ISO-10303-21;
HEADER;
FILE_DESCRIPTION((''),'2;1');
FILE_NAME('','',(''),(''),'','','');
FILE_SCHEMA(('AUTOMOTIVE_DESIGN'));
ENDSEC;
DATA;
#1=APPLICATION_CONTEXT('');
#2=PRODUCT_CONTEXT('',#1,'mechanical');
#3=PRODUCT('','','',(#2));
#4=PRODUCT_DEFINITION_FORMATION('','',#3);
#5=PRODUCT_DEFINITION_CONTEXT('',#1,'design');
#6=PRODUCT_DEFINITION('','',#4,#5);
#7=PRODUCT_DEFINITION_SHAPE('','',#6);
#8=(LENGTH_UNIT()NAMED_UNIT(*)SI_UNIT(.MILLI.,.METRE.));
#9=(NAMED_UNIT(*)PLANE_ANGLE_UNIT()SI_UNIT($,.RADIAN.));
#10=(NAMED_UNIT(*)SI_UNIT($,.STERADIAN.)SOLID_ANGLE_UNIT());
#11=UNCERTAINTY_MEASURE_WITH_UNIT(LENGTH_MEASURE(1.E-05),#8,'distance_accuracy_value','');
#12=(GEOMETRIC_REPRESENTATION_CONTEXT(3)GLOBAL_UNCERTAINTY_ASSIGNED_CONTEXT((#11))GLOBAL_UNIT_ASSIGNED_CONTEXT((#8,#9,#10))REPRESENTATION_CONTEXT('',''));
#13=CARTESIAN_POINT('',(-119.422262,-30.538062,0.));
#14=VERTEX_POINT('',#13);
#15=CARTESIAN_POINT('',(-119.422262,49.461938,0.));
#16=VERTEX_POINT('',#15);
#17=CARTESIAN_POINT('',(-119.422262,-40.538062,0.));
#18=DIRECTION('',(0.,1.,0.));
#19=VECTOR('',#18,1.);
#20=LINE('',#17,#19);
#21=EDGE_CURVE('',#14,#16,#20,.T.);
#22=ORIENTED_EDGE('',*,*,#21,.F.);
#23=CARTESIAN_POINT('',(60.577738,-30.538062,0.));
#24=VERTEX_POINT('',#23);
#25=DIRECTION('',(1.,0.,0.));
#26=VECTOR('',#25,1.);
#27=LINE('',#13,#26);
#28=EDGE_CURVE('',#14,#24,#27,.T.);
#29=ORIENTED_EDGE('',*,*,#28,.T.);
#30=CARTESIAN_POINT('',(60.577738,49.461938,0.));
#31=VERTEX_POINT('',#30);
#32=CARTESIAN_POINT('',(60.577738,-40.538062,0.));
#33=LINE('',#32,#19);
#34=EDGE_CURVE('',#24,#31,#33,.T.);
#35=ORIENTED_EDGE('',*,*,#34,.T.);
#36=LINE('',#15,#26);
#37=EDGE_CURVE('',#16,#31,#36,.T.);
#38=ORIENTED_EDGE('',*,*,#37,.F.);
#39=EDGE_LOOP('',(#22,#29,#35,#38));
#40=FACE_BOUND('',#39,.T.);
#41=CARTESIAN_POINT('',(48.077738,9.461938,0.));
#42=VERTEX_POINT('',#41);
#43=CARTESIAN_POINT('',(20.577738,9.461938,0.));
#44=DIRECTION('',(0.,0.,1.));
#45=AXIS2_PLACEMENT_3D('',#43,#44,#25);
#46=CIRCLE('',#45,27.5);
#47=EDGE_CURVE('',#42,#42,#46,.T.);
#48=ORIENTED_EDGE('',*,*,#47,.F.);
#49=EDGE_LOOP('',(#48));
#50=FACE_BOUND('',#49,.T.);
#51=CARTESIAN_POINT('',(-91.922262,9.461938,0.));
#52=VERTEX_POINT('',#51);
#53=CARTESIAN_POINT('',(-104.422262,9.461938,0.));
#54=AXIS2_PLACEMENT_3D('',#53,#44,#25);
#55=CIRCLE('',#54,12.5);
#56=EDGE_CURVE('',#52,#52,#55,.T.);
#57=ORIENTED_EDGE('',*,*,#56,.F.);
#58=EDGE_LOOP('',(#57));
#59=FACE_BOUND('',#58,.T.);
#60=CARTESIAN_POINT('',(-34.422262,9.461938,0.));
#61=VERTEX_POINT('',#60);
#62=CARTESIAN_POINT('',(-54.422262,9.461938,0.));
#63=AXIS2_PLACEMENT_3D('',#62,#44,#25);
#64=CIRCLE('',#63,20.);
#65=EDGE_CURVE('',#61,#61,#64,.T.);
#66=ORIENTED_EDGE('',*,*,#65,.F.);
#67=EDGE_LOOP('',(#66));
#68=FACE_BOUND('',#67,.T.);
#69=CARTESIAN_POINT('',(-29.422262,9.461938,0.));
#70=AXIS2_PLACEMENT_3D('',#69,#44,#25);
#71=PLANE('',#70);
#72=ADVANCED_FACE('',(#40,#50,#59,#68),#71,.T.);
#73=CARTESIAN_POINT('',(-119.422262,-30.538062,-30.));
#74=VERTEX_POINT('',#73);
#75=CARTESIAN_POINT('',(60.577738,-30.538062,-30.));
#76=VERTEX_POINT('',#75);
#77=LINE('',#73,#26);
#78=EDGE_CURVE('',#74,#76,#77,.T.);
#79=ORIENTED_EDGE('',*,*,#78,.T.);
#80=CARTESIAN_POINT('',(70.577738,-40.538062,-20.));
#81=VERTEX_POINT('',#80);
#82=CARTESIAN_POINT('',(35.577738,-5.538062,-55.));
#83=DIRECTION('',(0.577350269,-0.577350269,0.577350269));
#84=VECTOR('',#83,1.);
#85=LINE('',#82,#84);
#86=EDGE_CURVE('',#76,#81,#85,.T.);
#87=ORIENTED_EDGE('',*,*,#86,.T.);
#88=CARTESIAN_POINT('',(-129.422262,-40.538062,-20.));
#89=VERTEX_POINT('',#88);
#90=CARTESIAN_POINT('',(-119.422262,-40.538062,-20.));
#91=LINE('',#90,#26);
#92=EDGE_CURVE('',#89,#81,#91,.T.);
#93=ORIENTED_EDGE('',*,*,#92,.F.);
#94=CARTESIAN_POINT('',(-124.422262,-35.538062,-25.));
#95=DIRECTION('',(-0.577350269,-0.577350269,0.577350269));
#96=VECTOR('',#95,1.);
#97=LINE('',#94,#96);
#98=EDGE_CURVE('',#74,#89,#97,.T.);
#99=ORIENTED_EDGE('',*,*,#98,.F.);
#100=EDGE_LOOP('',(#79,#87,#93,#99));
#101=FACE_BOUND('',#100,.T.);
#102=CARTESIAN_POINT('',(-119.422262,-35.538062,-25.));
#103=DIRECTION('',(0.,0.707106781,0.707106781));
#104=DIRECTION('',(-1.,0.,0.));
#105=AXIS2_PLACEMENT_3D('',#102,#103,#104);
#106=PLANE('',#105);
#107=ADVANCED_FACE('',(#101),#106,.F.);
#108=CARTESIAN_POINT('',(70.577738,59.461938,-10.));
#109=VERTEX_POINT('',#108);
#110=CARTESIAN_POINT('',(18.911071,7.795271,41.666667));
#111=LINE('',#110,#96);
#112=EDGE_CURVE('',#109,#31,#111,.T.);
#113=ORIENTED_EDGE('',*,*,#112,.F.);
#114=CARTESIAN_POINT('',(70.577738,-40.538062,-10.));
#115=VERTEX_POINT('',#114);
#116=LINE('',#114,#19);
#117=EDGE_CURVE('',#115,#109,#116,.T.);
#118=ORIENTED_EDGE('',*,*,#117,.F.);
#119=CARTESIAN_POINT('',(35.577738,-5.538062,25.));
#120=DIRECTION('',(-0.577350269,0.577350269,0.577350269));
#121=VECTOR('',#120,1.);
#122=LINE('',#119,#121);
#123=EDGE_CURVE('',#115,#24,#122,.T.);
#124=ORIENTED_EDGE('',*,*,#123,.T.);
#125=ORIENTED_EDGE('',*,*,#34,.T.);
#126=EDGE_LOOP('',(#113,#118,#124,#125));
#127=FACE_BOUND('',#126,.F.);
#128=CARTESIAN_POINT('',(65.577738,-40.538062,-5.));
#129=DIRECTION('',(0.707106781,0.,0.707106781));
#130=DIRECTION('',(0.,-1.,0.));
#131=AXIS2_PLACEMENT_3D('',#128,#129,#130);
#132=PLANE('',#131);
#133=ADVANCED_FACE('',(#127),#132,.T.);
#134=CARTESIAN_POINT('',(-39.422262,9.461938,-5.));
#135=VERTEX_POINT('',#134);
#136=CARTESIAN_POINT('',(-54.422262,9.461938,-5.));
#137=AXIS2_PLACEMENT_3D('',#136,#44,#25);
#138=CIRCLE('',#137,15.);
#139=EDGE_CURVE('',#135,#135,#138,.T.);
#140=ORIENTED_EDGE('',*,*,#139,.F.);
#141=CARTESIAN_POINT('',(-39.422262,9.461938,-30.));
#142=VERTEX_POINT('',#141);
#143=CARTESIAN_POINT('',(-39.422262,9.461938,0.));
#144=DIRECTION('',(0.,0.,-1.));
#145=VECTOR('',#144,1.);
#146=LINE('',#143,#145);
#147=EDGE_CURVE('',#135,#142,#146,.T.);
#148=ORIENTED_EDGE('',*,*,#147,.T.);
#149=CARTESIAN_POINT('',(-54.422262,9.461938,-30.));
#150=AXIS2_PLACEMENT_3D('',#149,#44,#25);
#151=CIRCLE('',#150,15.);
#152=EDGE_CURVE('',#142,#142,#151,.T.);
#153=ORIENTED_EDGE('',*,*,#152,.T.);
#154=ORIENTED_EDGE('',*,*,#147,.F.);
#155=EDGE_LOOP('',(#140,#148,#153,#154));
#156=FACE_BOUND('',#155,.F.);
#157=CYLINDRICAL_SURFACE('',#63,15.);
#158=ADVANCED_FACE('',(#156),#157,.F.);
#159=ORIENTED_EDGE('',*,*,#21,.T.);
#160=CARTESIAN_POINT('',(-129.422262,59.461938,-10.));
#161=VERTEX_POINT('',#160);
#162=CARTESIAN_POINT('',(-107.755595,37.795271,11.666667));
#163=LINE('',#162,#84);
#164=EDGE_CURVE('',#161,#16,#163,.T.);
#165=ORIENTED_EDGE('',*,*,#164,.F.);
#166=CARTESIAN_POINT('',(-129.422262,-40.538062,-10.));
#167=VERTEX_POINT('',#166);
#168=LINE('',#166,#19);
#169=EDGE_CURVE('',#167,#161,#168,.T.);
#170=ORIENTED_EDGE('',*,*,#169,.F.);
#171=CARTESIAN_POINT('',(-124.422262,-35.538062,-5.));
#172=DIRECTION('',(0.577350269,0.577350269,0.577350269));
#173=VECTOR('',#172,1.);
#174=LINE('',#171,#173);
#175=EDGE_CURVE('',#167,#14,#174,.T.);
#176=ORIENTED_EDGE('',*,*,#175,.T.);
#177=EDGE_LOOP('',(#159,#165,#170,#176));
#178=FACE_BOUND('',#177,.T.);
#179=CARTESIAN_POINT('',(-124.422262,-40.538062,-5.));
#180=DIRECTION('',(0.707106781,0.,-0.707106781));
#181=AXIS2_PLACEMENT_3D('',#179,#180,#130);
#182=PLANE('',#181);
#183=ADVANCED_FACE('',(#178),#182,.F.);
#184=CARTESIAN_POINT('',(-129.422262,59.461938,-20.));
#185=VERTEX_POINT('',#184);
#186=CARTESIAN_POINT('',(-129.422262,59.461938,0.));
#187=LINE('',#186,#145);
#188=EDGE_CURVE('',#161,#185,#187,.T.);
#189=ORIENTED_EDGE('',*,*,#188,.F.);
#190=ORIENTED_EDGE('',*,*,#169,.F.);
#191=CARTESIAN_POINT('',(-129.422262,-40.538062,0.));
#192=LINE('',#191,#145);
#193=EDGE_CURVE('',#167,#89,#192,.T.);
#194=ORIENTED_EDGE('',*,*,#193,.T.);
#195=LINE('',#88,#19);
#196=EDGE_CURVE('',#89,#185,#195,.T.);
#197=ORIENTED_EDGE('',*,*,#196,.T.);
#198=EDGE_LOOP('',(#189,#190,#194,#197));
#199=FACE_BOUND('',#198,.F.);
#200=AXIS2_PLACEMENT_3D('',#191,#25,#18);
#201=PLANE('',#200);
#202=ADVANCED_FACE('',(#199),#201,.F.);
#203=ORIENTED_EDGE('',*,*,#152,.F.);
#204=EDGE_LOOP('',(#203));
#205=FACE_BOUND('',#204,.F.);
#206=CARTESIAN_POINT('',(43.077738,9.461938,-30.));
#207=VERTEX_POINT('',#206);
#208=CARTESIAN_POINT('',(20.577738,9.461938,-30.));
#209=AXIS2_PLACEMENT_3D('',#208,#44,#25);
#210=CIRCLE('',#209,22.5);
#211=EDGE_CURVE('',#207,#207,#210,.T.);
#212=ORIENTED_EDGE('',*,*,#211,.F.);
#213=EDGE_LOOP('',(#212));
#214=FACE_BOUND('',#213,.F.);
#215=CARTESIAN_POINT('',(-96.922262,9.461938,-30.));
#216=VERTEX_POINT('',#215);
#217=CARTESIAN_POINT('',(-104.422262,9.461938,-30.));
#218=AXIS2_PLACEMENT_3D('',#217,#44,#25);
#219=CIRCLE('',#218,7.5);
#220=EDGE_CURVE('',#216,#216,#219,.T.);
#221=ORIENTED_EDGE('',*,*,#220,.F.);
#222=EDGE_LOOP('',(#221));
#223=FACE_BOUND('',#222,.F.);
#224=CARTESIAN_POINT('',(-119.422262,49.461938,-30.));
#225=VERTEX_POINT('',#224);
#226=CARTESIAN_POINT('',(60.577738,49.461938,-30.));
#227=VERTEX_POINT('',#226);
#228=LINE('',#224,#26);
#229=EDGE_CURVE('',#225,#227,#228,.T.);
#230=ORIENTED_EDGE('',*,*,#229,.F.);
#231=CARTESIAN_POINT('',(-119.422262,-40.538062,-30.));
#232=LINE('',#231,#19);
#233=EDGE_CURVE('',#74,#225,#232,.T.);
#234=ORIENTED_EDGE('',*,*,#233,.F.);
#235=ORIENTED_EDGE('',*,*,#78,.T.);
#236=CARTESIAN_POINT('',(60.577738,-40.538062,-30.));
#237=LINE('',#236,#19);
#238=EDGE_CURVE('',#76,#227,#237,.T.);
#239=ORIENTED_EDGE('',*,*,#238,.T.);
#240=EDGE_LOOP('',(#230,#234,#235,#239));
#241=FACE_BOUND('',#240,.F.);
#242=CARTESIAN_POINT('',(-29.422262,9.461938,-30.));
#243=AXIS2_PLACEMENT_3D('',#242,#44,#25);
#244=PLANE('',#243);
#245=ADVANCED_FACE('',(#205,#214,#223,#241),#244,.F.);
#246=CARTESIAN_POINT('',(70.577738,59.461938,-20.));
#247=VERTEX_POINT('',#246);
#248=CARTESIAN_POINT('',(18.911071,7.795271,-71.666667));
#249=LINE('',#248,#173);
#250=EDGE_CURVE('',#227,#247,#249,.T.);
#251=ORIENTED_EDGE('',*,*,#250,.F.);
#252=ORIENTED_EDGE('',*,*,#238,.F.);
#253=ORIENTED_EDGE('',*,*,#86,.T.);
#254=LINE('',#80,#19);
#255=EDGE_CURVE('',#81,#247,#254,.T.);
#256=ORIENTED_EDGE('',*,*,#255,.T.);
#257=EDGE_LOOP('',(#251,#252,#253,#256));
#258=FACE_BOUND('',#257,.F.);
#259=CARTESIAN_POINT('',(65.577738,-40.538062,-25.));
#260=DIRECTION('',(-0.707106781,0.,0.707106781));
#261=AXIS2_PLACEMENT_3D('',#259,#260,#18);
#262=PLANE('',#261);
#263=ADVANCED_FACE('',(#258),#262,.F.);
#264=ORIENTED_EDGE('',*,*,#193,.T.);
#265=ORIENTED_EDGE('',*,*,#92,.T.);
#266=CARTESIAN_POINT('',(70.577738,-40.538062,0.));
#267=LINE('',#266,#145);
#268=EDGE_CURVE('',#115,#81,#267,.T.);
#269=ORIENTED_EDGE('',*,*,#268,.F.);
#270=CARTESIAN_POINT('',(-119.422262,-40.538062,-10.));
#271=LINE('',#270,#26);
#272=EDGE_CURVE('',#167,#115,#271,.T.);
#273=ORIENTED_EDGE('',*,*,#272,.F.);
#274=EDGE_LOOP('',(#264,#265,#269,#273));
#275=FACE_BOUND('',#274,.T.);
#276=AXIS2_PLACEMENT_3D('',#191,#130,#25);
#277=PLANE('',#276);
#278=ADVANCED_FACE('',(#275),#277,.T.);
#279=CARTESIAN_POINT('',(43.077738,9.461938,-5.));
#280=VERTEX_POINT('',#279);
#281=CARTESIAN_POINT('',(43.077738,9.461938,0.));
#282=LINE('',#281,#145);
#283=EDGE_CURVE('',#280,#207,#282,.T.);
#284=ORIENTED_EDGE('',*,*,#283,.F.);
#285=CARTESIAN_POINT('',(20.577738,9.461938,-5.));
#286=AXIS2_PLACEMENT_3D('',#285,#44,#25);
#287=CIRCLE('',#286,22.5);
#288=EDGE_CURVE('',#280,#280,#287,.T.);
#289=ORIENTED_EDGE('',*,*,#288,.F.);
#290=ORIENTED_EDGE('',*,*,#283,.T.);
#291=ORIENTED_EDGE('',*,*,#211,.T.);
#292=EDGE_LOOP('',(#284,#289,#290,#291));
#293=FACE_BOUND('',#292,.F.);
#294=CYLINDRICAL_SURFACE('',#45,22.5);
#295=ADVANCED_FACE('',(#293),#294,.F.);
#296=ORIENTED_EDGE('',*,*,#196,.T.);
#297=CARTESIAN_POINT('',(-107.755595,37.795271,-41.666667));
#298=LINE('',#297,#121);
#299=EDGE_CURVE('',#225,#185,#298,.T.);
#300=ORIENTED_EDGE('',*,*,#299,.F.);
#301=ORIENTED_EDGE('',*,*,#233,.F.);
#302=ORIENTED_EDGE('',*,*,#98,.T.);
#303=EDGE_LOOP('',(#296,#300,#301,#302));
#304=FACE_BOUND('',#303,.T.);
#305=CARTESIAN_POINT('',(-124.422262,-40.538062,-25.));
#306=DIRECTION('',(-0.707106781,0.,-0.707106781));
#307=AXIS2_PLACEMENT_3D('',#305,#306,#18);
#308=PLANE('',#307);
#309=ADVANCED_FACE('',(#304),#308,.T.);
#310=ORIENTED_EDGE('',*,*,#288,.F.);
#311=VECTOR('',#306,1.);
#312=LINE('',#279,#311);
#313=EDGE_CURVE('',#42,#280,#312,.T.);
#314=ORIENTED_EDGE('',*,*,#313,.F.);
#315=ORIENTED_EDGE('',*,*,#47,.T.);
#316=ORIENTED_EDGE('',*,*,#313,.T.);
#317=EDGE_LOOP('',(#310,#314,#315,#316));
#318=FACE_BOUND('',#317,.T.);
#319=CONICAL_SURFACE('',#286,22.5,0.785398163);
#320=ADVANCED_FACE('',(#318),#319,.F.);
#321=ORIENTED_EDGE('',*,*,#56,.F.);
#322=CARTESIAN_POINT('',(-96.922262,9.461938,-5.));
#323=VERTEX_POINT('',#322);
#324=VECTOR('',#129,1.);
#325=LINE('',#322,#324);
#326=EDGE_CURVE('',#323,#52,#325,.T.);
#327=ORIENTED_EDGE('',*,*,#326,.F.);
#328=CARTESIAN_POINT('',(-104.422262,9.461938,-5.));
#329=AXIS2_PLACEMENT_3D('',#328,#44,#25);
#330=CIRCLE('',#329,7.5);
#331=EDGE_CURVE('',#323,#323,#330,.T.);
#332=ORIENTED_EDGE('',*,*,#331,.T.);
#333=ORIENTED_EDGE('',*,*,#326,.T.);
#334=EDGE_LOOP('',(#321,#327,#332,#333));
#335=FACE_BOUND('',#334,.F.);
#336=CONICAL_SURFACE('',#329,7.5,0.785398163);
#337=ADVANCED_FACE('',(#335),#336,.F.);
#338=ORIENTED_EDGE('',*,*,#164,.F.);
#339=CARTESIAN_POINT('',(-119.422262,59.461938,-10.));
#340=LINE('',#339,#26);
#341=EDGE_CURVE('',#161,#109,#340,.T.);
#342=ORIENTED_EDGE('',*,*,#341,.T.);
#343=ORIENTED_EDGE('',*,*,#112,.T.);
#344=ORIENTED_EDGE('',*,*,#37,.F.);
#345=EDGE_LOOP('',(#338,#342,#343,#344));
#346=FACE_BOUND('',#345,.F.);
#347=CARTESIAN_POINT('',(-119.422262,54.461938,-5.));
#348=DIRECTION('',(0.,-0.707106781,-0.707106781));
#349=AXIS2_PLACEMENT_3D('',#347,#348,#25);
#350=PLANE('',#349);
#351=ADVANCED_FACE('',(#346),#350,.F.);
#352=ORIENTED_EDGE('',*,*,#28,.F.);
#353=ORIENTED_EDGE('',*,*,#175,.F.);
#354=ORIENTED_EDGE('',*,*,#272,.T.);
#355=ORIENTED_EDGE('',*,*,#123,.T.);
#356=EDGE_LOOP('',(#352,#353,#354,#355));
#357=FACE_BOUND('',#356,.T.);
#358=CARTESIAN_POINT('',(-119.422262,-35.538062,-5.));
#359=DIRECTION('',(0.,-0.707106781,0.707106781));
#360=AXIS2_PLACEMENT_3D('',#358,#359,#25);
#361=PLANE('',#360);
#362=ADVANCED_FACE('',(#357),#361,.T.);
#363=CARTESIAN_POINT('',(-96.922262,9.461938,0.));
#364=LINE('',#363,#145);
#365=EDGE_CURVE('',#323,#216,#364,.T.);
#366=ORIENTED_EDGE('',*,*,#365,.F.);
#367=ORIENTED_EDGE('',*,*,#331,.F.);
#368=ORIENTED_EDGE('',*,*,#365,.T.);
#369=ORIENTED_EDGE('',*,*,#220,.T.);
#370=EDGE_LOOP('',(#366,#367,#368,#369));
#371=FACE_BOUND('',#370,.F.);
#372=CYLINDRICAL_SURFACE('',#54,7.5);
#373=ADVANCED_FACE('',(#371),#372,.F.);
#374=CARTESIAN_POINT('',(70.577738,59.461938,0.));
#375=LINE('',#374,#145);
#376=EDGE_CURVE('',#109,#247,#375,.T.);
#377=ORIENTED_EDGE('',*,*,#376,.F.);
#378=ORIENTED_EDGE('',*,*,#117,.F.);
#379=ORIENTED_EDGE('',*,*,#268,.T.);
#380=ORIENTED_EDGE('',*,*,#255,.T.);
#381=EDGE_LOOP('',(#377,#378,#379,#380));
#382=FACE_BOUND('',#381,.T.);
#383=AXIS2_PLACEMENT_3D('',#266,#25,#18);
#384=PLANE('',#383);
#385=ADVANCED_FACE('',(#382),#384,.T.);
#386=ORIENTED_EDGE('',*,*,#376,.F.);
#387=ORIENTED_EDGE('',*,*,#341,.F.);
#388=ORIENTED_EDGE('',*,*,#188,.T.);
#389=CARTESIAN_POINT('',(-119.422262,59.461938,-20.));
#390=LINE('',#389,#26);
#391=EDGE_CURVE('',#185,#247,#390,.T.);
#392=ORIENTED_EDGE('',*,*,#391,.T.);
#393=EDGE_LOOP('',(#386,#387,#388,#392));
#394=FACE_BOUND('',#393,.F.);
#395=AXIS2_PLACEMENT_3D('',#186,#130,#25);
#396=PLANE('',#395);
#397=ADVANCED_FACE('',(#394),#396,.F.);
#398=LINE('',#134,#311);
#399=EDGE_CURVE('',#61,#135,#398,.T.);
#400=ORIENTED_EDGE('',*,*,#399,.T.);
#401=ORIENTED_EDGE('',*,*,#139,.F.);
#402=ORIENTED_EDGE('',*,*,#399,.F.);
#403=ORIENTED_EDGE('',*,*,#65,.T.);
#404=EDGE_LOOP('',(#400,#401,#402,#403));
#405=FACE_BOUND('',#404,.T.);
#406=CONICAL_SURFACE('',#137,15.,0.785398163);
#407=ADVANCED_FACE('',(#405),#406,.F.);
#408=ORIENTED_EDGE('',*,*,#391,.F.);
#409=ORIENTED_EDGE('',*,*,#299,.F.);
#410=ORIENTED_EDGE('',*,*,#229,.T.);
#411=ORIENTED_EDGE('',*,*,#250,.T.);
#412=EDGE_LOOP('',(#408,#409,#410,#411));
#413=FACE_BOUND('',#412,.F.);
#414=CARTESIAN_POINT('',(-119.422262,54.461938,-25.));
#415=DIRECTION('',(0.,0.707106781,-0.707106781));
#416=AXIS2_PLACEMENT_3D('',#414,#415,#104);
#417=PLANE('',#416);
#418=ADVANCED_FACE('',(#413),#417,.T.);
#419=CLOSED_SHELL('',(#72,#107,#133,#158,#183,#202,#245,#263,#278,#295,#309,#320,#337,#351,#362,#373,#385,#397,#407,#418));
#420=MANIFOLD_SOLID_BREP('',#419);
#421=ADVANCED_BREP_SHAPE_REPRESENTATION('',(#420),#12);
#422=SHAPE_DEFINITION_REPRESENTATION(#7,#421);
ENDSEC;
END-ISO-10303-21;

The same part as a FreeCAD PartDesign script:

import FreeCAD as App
import Part
import Sketcher

V = App.Vector
Q = App.Units.Quantity


def edges_at(feature, points):
    """Names of the edges that pass closest to the given points."""
    edges = feature.Shape.Edges
    near = lambda p: min(range(len(edges)), key=lambda i: edges[i].distToShape(Part.Vertex(*p))[0])
    return sorted({f"Edge{near(p) + 1}" for p in points})

doc = App.newDocument("Part")
body = doc.addObject("PartDesign::Body", "Body")

sketch1 = body.newObject("Sketcher::SketchObject", "Sketch")
sketch1.AttachmentSupport = (doc.getObject("XY_Plane"), [""])
sketch1.MapMode = "FlatFace"
sketch1.addGeometry([
    Part.LineSegment(V(-129.422262, 59.461938, 0), V(-129.422262, -40.538062, 0)),
    Part.LineSegment(V(-129.422262, -40.538062, 0), V(70.577738, -40.538062, 0)),
    Part.LineSegment(V(70.577738, -40.538062, 0), V(70.577738, 59.461938, 0)),
    Part.LineSegment(V(70.577738, 59.461938, 0), V(-129.422262, 59.461938, 0)),
    Part.Circle(V(-104.422262, 9.461938, 0), V(0, 0, 1), 7.5),
    Part.Circle(V(-54.422262, 9.461938, 0), V(0, 0, 1), 15),
    Part.Circle(V(20.577738, 9.461938, 0), V(0, 0, 1), 22.5),
], False)
sketch1.addConstraint([
    Sketcher.Constraint("Coincident", 0, 2, 1, 1),
    Sketcher.Constraint("Coincident", 1, 2, 2, 1),
    Sketcher.Constraint("Coincident", 2, 2, 3, 1),
    Sketcher.Constraint("Coincident", 3, 2, 0, 1),
    Sketcher.Constraint("Vertical", 0),
    Sketcher.Constraint("Horizontal", 1),
    Sketcher.Constraint("Vertical", 2),
    Sketcher.Constraint("Horizontal", 3),
    Sketcher.Constraint("Horizontal", 4, 3, 5, 3),
    Sketcher.Constraint("Horizontal", 5, 3, 6, 3),
    Sketcher.Constraint("Diameter", 4, Q("15 mm")),
    Sketcher.Constraint("Diameter", 5, Q("30 mm")),
    Sketcher.Constraint("Diameter", 6, Q("45 mm")),
    Sketcher.Constraint("DistanceX", 1, 1, 1, 2, Q("200 mm")),
    Sketcher.Constraint("DistanceY", 0, 2, 0, 1, Q("100 mm")),
    Sketcher.Constraint("DistanceX", 4, 3, 5, 3, Q("50 mm")),
    Sketcher.Constraint("DistanceX", 5, 3, 6, 3, Q("75 mm")),
    Sketcher.Constraint("DistanceX", 0, 2, 4, 3, Q("25 mm")),
    Sketcher.Constraint("DistanceY", 0, 2, 4, 3, Q("50 mm")),
    Sketcher.Constraint("DistanceX", -1, 1, 6, 3, Q("20.577738 mm")),
    Sketcher.Constraint("DistanceY", 0, 2, -1, 1, Q("40.538062 mm")),
])
pad1 = body.newObject("PartDesign::Pad", "Pad")
pad1.Profile = sketch1
pad1.Length = 30
pad1.Reversed = True
doc.recompute()

chamfer = body.newObject("PartDesign::Chamfer", "Chamfer")
chamfer.Base = (pad1, edges_at(pad1, [(-111.922, 9.462, 0)]))
chamfer.ChamferType = "Two distances"
chamfer.Size = 5
chamfer.Size2 = 5
doc.recompute()

chamfer2 = body.newObject("PartDesign::Chamfer", "Chamfer001")
chamfer2.Base = (chamfer, edges_at(chamfer, [(-69.422, 9.462, 0)]))
chamfer2.ChamferType = "Two distances"
chamfer2.Size = 5
chamfer2.Size2 = 5
doc.recompute()

chamfer3 = body.newObject("PartDesign::Chamfer", "Chamfer002")
chamfer3.Base = (chamfer2, edges_at(chamfer2, [(-1.922, 9.462, 0)]))
chamfer3.ChamferType = "Two distances"
chamfer3.Size = 5
chamfer3.Size2 = 5
doc.recompute()

chamfer4 = body.newObject("PartDesign::Chamfer", "Chamfer003")
chamfer4.Base = (chamfer3, edges_at(chamfer3, [(70.578, 9.462, 0)]))
chamfer4.ChamferType = "Two distances"
chamfer4.Size = 10
chamfer4.Size2 = 10
doc.recompute()

chamfer5 = body.newObject("PartDesign::Chamfer", "Chamfer004")
chamfer5.Base = (chamfer4, edges_at(chamfer4, [(70.578, 9.462, -30)]))
chamfer5.ChamferType = "Two distances"
chamfer5.Size = 10
chamfer5.Size2 = 10
doc.recompute()

chamfer6 = body.newObject("PartDesign::Chamfer", "Chamfer005")
chamfer6.Base = (chamfer5, edges_at(chamfer5, [(-129.422, 9.462, 0)]))
chamfer6.ChamferType = "Two distances"
chamfer6.Size = 10
chamfer6.Size2 = 10
doc.recompute()

chamfer7 = body.newObject("PartDesign::Chamfer", "Chamfer006")
chamfer7.Base = (chamfer6, edges_at(chamfer6, [(-129.422, 9.462, -30)]))
chamfer7.ChamferType = "Two distances"
chamfer7.Size = 10
chamfer7.Size2 = 10
doc.recompute()

chamfer8 = body.newObject("PartDesign::Chamfer", "Chamfer007")
chamfer8.Base = (chamfer7, edges_at(chamfer7, [(-29.422, -40.538, 0)]))
chamfer8.ChamferType = "Two distances"
chamfer8.Size = 10
chamfer8.Size2 = 10
doc.recompute()

chamfer9 = body.newObject("PartDesign::Chamfer", "Chamfer008")
chamfer9.Base = (chamfer8, edges_at(chamfer8, [(-29.422, 59.462, -30)]))
chamfer9.ChamferType = "Two distances"
chamfer9.Size = 10
chamfer9.Size2 = 10
doc.recompute()

chamfer10 = body.newObject("PartDesign::Chamfer", "Chamfer009")
chamfer10.Base = (chamfer9, edges_at(chamfer9, [(-29.422, -40.538, -30)]))
chamfer10.ChamferType = "Two distances"
chamfer10.Size = 10
chamfer10.Size2 = 10
doc.recompute()

chamfer11 = body.newObject("PartDesign::Chamfer", "Chamfer010")
chamfer11.Base = (chamfer10, edges_at(chamfer10, [(-29.422, 59.462, 0)]))
chamfer11.ChamferType = "Two distances"
chamfer11.Size = 10
chamfer11.Size2 = 10

doc.recompute()
